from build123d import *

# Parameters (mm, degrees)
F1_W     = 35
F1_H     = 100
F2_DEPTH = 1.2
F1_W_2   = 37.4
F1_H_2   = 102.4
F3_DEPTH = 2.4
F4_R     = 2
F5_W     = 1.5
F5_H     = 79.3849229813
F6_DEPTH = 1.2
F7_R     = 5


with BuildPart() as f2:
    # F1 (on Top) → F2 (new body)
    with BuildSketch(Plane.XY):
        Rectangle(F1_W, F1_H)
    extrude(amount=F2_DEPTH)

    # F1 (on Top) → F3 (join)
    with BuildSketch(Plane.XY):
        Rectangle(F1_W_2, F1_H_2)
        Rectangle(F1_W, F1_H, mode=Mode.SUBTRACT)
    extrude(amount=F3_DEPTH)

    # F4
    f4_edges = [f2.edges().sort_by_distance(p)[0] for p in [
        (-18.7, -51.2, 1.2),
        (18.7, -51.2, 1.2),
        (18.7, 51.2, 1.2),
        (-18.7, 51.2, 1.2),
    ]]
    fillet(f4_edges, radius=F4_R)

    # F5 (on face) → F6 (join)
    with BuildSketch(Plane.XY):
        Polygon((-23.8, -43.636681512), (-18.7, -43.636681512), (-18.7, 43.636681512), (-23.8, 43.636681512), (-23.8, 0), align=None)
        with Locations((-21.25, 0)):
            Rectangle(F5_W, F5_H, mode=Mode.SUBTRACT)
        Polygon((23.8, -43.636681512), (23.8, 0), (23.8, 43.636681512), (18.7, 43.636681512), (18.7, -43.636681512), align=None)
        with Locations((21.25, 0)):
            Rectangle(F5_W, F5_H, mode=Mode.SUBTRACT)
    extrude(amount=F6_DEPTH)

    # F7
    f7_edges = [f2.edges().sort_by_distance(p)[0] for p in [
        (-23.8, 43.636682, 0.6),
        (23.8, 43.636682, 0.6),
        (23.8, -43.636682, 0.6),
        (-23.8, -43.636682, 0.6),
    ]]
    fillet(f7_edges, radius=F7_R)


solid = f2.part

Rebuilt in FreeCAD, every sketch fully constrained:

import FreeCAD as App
import Part
import Sketcher
from FreeCAD import Vector
Q = App.Units.Quantity


def edges_at(feature, points):
    """Names of the edges that pass closest to the given points."""
    edges = feature.Shape.Edges
    near = lambda p: min(range(len(edges)), key=lambda i: edges[i].distToShape(Part.Vertex(*p))[0])
    return sorted({f"Edge{near(p) + 1}" for p in points})


def add_polygon(sketch, points):
    """Adds a closed chain of lines whose ends are joined by coincident constraints."""
    first, n = sketch.GeometryCount, len(points)
    for a, b in zip(points, points[1:] + points[:1]):
        sketch.addGeometry(Part.LineSegment(App.Vector(*a, 0), App.Vector(*b, 0)), False)
    for i in range(n):
        sketch.addConstraint(Sketcher.Constraint("Coincident", first + i, 2, first + (i + 1) % n, 1))

doc = App.newDocument("Part")
body = doc.addObject("PartDesign::Body", "Body")

sketch1 = doc.addObject("Sketcher::SketchObject", "Sketch")
body.addObject(sketch1)
sketch1.AttachmentSupport = (doc.XY_Plane, [""])
sketch1.MapMode = "FlatFace"
add_polygon(sketch1, [(-18, 50), (-18, -50), (18, -50), (18, 50)])
sketch1.addConstraint([
    Sketcher.Constraint("Vertical", 0),
    Sketcher.Constraint("Horizontal", 1),
    Sketcher.Constraint("Vertical", 2),
    Sketcher.Constraint("Horizontal", 3),
    Sketcher.Constraint("Symmetric", 0, 2, 2, 2, -1, 1),
    Sketcher.Constraint("DistanceX", 1, 1, 1, 2, Q("35 mm")),
    Sketcher.Constraint("DistanceY", 0, 2, 0, 1, Q("100 mm")),
])
pad1 = doc.addObject("PartDesign::Pad", "Pad")
body.addObject(pad1)
pad1.Profile = sketch1
pad1.Length = 1.2

sketch2 = doc.addObject("Sketcher::SketchObject", "Sketch001")
body.addObject(sketch2)
sketch2.AttachmentSupport = (doc.XY_Plane, [""])
sketch2.MapMode = "FlatFace"
add_polygon(sketch2, [(-19, 51), (-19, -51), (19, -51), (19, 51)])
add_polygon(sketch2, [(18, -50), (-18, -50), (-18, 50), (18, 50)])
sketch2.addConstraint([
    Sketcher.Constraint("Vertical", 0),
    Sketcher.Constraint("Horizontal", 1),
    Sketcher.Constraint("Vertical", 2),
    Sketcher.Constraint("Horizontal", 3),
    Sketcher.Constraint("Horizontal", 4),
    Sketcher.Constraint("Vertical", 5),
    Sketcher.Constraint("Horizontal", 6),
    Sketcher.Constraint("Vertical", 7),
    Sketcher.Constraint("Symmetric", 0, 2, 2, 2, -1, 1),
    Sketcher.Constraint("Symmetric", 4, 2, 6, 2, -1, 1),
    Sketcher.Constraint("DistanceX", 4, 2, 4, 1, Q("35 mm")),
    Sketcher.Constraint("DistanceY", 5, 1, 5, 2, Q("100 mm")),
    Sketcher.Constraint("DistanceX", 1, 1, 1, 2, Q("37.4 mm")),
    Sketcher.Constraint("DistanceY", 0, 2, 0, 1, Q("102.4 mm")),
])
pad2 = doc.addObject("PartDesign::Pad", "Pad001")
body.addObject(pad2)
pad2.Profile = sketch2
pad2.Length = 2.4
doc.recompute()

fillet = doc.addObject("PartDesign::Fillet", "Fillet")
body.addObject(fillet)
fillet.Base = (pad2, edges_at(pad2, [
    (-18.7, -51.2, 1.2),
    (18.7, -51.2, 1.2),
    (18.7, 51.2, 1.2),
    (-18.7, 51.2, 1.2),
]))
fillet.Radius = 2

sketch3 = doc.addObject("Sketcher::SketchObject", "Sketch002")
body.addObject(sketch3)
sketch3.AttachmentSupport = (doc.XY_Plane, [""])
sketch3.MapMode = "FlatFace"
add_polygon(sketch3, [(-23.8, -43.6), (-18.7, -43.6), (-18.7, 43.6), (-23.8, 43.6)])
add_polygon(sketch3, [(-20.5, -39.7), (-22, -39.7), (-22, 39.7), (-20.5, 39.7)])
add_polygon(sketch3, [(23.8, -43.6), (23.8, 43.6), (18.7, 43.6), (18.7, -43.6)])
add_polygon(sketch3, [(22, -39.7), (20.5, -39.7), (20.5, 39.7), (22, 39.7)])
sketch3.addConstraint([
    Sketcher.Constraint("Horizontal", 0),
    Sketcher.Constraint("Vertical", 1),
    Sketcher.Constraint("Horizontal", 2),
    Sketcher.Constraint("Vertical", 3),
    Sketcher.Constraint("Horizontal", 4),
    Sketcher.Constraint("Vertical", 5),
    Sketcher.Constraint("Horizontal", 6),
    Sketcher.Constraint("Vertical", 7),
    Sketcher.Constraint("Vertical", 8),
    Sketcher.Constraint("Horizontal", 9),
    Sketcher.Constraint("Vertical", 10),
    Sketcher.Constraint("Horizontal", 11),
    Sketcher.Constraint("Horizontal", 12),
    Sketcher.Constraint("Vertical", 13),
    Sketcher.Constraint("Horizontal", 14),
    Sketcher.Constraint("Vertical", 15),
    Sketcher.Constraint("Symmetric", 3, 2, 8, 2, -1, 1),
    Sketcher.Constraint("Symmetric", 1, 2, 10, 2, -1, 1),
    Sketcher.Constraint("Symmetric", 6, 2, 12, 2, -1, 1),
    Sketcher.Constraint("Symmetric", 4, 2, 14, 2, -1, 1),
    Sketcher.Constraint("Horizontal", 2, 2, 8, 2),
    Sketcher.Constraint("Horizontal", 7, 2, 12, 2),
    Sketcher.Constraint("DistanceX", 0, 1, 0, 2, Q("5.1 mm")),
    Sketcher.Constraint("DistanceX", 4, 2, 4, 1, Q("1.5 mm")),
    Sketcher.Constraint("DistanceX", 4, 2, -1, 1, Q("22 mm")),
    Sketcher.Constraint("DistanceX", 0, 2, -1, 1, Q("18.7 mm")),
    Sketcher.Constraint("DistanceY", 1, 1, 1, 2, Q("87.273363 mm")),
    Sketcher.Constraint("DistanceY", 5, 1, 5, 2, Q("79.384923 mm")),
])
pad3 = doc.addObject("PartDesign::Pad", "Pad002")
body.addObject(pad3)
pad3.Profile = sketch3
pad3.Length = 1.2
doc.recompute()

fillet2 = doc.addObject("PartDesign::Fillet", "Fillet001")
body.addObject(fillet2)
fillet2.Base = (pad3, edges_at(pad3, [
    (-23.8, 43.637, 0.6),
    (23.8, 43.637, 0.6),
    (23.8, -43.637, 0.6),
    (-23.8, -43.637, 0.6),
]))
fillet2.Radius = 5

doc.recompute()
